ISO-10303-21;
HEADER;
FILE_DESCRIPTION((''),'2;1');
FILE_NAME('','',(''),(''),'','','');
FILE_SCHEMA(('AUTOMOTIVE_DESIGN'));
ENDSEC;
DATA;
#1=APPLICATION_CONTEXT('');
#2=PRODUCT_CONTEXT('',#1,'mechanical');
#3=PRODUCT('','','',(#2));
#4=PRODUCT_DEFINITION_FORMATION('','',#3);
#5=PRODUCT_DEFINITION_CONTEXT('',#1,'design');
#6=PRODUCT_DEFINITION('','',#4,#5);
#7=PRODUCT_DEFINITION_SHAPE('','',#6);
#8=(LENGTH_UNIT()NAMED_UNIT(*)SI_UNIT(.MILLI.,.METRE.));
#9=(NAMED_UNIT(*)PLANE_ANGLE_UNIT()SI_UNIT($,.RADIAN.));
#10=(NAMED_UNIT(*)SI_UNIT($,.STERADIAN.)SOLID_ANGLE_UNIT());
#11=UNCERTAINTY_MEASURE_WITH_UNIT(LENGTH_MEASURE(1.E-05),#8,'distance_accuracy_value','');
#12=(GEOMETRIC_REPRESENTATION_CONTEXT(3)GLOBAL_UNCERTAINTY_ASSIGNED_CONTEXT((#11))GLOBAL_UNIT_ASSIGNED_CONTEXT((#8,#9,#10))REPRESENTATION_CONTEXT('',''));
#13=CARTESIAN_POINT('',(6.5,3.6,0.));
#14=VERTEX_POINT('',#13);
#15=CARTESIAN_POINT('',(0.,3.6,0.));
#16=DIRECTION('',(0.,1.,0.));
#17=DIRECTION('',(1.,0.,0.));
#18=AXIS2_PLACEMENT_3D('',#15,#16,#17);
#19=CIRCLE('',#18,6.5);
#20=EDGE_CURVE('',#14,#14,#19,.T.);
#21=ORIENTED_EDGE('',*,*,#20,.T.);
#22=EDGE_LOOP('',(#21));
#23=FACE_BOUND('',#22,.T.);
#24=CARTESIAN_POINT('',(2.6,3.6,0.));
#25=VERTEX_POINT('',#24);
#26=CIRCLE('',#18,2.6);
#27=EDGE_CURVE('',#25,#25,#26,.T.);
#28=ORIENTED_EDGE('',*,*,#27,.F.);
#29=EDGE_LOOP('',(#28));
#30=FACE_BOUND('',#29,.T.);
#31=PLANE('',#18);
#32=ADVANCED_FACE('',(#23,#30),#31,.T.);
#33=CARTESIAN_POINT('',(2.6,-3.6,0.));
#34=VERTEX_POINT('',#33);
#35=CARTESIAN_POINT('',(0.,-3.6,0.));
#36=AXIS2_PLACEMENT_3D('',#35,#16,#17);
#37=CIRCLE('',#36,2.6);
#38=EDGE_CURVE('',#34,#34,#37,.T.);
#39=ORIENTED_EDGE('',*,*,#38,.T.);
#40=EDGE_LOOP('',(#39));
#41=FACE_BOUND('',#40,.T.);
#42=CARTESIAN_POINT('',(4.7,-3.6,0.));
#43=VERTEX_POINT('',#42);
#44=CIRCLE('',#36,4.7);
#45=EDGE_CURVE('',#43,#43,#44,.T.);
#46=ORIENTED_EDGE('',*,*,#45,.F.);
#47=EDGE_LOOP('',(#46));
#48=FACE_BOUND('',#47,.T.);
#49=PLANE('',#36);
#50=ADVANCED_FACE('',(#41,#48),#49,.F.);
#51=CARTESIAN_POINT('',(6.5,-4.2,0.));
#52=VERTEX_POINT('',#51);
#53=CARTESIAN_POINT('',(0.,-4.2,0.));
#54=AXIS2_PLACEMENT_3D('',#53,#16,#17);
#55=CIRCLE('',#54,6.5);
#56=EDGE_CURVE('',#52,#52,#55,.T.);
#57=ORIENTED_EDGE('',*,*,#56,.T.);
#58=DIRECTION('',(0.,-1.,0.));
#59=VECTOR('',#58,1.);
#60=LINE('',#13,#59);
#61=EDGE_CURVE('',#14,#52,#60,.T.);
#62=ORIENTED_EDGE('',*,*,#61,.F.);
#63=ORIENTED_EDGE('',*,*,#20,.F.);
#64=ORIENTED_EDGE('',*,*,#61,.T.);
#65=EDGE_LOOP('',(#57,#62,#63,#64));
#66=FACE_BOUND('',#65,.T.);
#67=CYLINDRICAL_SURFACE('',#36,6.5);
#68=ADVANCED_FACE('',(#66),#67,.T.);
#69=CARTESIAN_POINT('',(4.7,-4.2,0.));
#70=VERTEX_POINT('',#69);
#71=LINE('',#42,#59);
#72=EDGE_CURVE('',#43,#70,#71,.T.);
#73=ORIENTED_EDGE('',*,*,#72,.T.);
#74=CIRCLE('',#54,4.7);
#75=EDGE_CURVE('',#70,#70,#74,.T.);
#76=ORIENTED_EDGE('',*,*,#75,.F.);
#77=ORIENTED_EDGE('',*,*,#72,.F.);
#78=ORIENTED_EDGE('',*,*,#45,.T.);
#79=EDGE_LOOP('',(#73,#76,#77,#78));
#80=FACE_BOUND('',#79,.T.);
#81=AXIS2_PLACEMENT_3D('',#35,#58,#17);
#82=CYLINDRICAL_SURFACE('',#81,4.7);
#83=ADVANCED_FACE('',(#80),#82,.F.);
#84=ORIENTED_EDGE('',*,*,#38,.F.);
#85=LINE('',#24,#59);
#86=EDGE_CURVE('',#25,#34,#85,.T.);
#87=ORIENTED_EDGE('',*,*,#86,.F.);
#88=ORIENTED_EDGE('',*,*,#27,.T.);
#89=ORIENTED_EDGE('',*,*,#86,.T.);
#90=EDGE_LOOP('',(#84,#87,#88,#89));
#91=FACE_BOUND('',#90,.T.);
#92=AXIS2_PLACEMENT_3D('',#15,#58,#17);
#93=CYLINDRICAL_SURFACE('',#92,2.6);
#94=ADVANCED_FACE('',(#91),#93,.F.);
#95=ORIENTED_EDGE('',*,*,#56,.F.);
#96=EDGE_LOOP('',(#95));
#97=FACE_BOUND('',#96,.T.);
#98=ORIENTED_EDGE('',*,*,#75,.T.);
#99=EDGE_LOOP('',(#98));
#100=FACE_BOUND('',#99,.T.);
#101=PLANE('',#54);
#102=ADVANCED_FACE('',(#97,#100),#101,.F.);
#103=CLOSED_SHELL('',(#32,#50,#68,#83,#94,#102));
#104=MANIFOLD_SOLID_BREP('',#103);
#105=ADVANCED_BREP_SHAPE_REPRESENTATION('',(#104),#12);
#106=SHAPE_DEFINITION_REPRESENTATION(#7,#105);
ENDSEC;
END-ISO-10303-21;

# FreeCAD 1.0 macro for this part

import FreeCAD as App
import Part
import Sketcher
Q = App.Units.Quantity

doc = App.newDocument("Part")
body = doc.addObject("PartDesign::Body", "Body")

# Sketch on XY plane
sketch1 = doc.addObject("Sketcher::SketchObject", "Sketch")
body.addObject(sketch1)
sketch1.AttachmentSupport = (doc.XY_Plane, [""])
sketch1.MapMode = "FlatFace"
sketch1.addGeometry([
    Part.LineSegment(App.Vector(6.5, 3.6, 0), App.Vector(2.6, 3.6, 0)),  # 0
    Part.LineSegment(App.Vector(2.6, 3.6, 0), App.Vector(2.6, -3.6, 0)),  # 1
    Part.LineSegment(App.Vector(2.6, -3.6, 0), App.Vector(4.7, -3.6, 0)),  # 2
    Part.LineSegment(App.Vector(4.7, -3.6, 0), App.Vector(4.7, -4.2, 0)),  # 3
    Part.LineSegment(App.Vector(4.7, -4.2, 0), App.Vector(6.5, -4.2, 0)),  # 4
    Part.LineSegment(App.Vector(6.5, -4.2, 0), App.Vector(6.5, 3.6, 0)),  # 5
], False)
sketch1.addConstraint([
    Sketcher.Constraint("Coincident", 0, 2, 1, 1),
    Sketcher.Constraint("Coincident", 1, 2, 2, 1),
    Sketcher.Constraint("Coincident", 2, 2, 3, 1),
    Sketcher.Constraint("Coincident", 3, 2, 4, 1),
    Sketcher.Constraint("Coincident", 4, 2, 5, 1),
    Sketcher.Constraint("Coincident", 5, 2, 0, 1),
    Sketcher.Constraint("Horizontal", 0),
    Sketcher.Constraint("Vertical", 1),
    Sketcher.Constraint("Horizontal", 2),
    Sketcher.Constraint("Vertical", 3),
    Sketcher.Constraint("Horizontal", 4),
    Sketcher.Constraint("Vertical", 5),
    Sketcher.Constraint("DistanceY", 1, 2, 1, 1, Q("7.2 mm")),
    Sketcher.Constraint("DistanceY", 3, 2, 3, 1, Q("0.6 mm")),
    Sketcher.Constraint("DistanceX", -1, 1, 0, 2, Q("2.6 mm")),
    Sketcher.Constraint("DistanceX", -1, 1, 2, 2, Q("4.7 mm")),
    Sketcher.Constraint("DistanceX", -1, 1, 4, 2, Q("6.5 mm")),
    Sketcher.Constraint("DistanceY", -1, 1, 0, 2, Q("3.6 mm")),
])
revolution = doc.addObject("PartDesign::Revolution", "Revolution")
body.addObject(revolution)
revolution.Profile = sketch1
revolution.ReferenceAxis = (sketch1, ["V_Axis"])
revolution.Angle = 360

doc.recompute()
